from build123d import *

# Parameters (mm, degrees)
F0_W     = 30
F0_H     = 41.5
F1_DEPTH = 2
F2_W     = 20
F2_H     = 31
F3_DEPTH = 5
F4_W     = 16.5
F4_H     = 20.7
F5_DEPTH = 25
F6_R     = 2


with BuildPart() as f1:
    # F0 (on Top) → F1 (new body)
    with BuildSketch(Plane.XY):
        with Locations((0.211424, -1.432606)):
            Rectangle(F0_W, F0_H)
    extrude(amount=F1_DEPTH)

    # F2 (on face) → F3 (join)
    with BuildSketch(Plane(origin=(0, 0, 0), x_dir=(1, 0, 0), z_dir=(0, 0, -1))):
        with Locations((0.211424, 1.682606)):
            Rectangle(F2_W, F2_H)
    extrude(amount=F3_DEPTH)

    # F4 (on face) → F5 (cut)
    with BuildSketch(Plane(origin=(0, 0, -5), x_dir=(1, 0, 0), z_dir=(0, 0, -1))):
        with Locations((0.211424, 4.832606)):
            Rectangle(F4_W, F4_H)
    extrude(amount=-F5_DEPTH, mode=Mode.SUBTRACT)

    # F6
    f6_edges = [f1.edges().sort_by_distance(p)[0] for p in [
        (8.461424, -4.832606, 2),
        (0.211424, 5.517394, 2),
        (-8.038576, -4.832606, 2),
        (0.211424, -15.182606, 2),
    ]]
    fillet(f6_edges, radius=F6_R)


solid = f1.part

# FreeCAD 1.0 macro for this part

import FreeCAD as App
import Part
import Sketcher


def edges_at(feature, points):
    """Names of the edges that pass closest to the given points."""
    edges = feature.Shape.Edges
    near = lambda p: min(range(len(edges)), key=lambda i: edges[i].distToShape(Part.Vertex(*p))[0])
    return sorted({f"Edge{near(p) + 1}" for p in points})


def add_polygon(sketch, points):
    """Adds a closed chain of lines whose ends are joined by coincident constraints."""
    first, n = sketch.GeometryCount, len(points)
    for a, b in zip(points, points[1:] + points[:1]):
        sketch.addGeometry(Part.LineSegment(App.Vector(*a, 0), App.Vector(*b, 0)), False)
    for i in range(n):
        sketch.addConstraint(Sketcher.Constraint("Coincident", first + i, 2, first + (i + 1) % n, 1))

doc = App.newDocument("Part")
params = doc.addObject("Spreadsheet::Sheet", "Params")
for row, (alias, value) in enumerate([
    ("sketch1_width", "30 mm"),
    ("sketch1_height", "41.5 mm"),
    ("pad1_length", "2 mm"),
    ("sketch2_width", "20 mm"),
    ("sketch2_height", "31 mm"),
    ("pad2_length", "5 mm"),
    ("sketch3_width", "16.5 mm"),
    ("sketch3_height", "20.7 mm"),
    ("pocket1_length", "25 mm"),
    ("fillet_radius", "2 mm"),
], start=1):
    params.set(f"A{row}", alias)
    params.set(f"B{row}", "=" + value)
    params.setAlias(f"B{row}", alias)

body = doc.addObject("PartDesign::Body", "Body")

# Sketch on XY plane
sketch1 = body.newObject("Sketcher::SketchObject", "Sketch")
sketch1.AttachmentSupport = (doc.getObject("XY_Plane"), [""])
sketch1.MapMode = "FlatFace"
add_polygon(sketch1, [(-15, 19), (-15, -22), (15, -22), (15, 19)])  # lines 0-3
sketch1.addConstraint([
    Sketcher.Constraint("Vertical", 0),
    Sketcher.Constraint("Horizontal", 1),
    Sketcher.Constraint("Vertical", 2),
    Sketcher.Constraint("Horizontal", 3),
    Sketcher.Constraint("DistanceX", 1, 1, 1, 2, 30.0),
    Sketcher.Constraint("DistanceY", 0, 2, 0, 1, 41.5),
    Sketcher.Constraint("DistanceX", 0, 2, -1, 1, 14.788576),
    Sketcher.Constraint("DistanceY", 0, 2, -1, 1, 22.182606),
])
sketch1.setExpression("Constraints[8]", "Params.sketch1_width")
sketch1.setExpression("Constraints[9]", "Params.sketch1_height")
pad1 = body.newObject("PartDesign::Pad", "Pad")
pad1.Profile = sketch1
pad1.setExpression("Length", "Params.pad1_length")

# Sketch on XY plane
sketch2 = body.newObject("Sketcher::SketchObject", "Sketch001")
sketch2.AttachmentSupport = (doc.getObject("XY_Plane"), [""])
sketch2.MapMode = "FlatFace"
add_polygon(sketch2, [(-10, -17), (-10, 14), (10, 14), (10, -17)])  # lines 0-3
sketch2.addConstraint([
    Sketcher.Constraint("Vertical", 0),
    Sketcher.Constraint("Horizontal", 1),
    Sketcher.Constraint("Vertical", 2),
    Sketcher.Constraint("Horizontal", 3),
    Sketcher.Constraint("DistanceX", 1, 1, 1, 2, 20.0),
    Sketcher.Constraint("DistanceY", 0, 1, 0, 2, 31.0),
    Sketcher.Constraint("DistanceX", 0, 2, -1, 1, 9.788576),
    Sketcher.Constraint("DistanceY", -1, 1, 0, 2, 13.817394),
])
sketch2.setExpression("Constraints[8]", "Params.sketch2_width")
sketch2.setExpression("Constraints[9]", "Params.sketch2_height")
pad2 = body.newObject("PartDesign::Pad", "Pad001")
pad2.Profile = sketch2
pad2.setExpression("Length", "Params.pad2_length")
pad2.Reversed = True

# Sketch on XY plane
sketch3 = body.newObject("Sketcher::SketchObject", "Sketch002")
sketch3.AttachmentSupport = (doc.getObject("XY_Plane"), [""])
sketch3.MapMode = "FlatFace"
sketch3.AttachmentOffset = App.Placement(App.Vector(0, 0, -5), App.Rotation())
add_polygon(sketch3, [(-8, -15), (-8, 6), (8, 6), (8, -15)])  # lines 0-3
sketch3.addConstraint([
    Sketcher.Constraint("Vertical", 0),
    Sketcher.Constraint("Horizontal", 1),
    Sketcher.Constraint("Vertical", 2),
    Sketcher.Constraint("Horizontal", 3),
    Sketcher.Constraint("DistanceX", 1, 1, 1, 2, 16.5),
    Sketcher.Constraint("DistanceY", 0, 1, 0, 2, 20.7),
    Sketcher.Constraint("DistanceX", 0, 2, -1, 1, 8.038576),
    Sketcher.Constraint("DistanceY", -1, 1, 0, 2, 5.517394),
])
sketch3.setExpression("Constraints[8]", "Params.sketch3_width")
sketch3.setExpression("Constraints[9]", "Params.sketch3_height")
pocket1 = body.newObject("PartDesign::Pocket", "Pocket")
pocket1.Profile = sketch3
pocket1.setExpression("Length", "Params.pocket1_length")
pocket1.Reversed = True
doc.recompute()

fillet = body.newObject("PartDesign::Fillet", "Fillet")
fillet.Base = (pocket1, edges_at(pocket1, [
    (8.461, -4.833, 2),
    (0.211, 5.517, 2),
    (-8.039, -4.833, 2),
    (0.211, -15.183, 2),
]))
fillet.setExpression("Radius", "Params.fillet_radius")

doc.recompute()
